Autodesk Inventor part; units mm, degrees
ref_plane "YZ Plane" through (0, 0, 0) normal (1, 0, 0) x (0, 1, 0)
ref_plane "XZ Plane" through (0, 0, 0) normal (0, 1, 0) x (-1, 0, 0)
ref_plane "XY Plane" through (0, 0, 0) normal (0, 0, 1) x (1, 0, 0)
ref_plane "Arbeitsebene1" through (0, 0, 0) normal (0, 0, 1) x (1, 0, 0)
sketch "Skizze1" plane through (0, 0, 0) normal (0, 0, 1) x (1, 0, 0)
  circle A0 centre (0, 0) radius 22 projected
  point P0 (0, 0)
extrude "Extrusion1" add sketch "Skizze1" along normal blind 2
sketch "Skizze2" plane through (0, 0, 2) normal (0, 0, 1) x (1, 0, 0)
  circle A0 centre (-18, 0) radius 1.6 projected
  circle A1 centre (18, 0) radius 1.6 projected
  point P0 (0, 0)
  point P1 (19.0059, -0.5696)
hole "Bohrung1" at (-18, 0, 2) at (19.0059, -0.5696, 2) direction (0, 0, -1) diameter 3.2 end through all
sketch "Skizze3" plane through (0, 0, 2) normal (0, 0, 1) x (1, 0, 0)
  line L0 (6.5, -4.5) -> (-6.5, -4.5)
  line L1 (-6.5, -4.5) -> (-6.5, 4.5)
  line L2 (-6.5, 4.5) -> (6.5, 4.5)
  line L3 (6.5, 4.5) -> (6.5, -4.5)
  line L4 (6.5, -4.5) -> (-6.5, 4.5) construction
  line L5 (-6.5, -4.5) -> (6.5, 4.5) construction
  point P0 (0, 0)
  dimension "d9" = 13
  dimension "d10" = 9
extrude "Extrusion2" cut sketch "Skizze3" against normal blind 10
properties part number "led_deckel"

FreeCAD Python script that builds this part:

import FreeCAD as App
import Part
import Sketcher


def add_polygon(sketch, points):
    """Adds a closed chain of lines whose ends are joined by coincident constraints."""
    first, n = sketch.GeometryCount, len(points)
    for a, b in zip(points, points[1:] + points[:1]):
        sketch.addGeometry(Part.LineSegment(App.Vector(*a, 0), App.Vector(*b, 0)), False)
    for i in range(n):
        sketch.addConstraint(Sketcher.Constraint("Coincident", first + i, 2, first + (i + 1) % n, 1))

doc = App.newDocument("Part")
body = doc.addObject("PartDesign::Body", "Body")

# Sketch on XY plane
sketch1 = doc.addObject("Sketcher::SketchObject", "Sketch")
body.addObject(sketch1)
sketch1.AttachmentSupport = (doc.XY_Plane, [""])
sketch1.MapMode = "FlatFace"
sketch1.addGeometry(Part.Circle(App.Vector(0, 0, 0), App.Vector(0, 0, 1), 22), False)
sketch1.addConstraint(Sketcher.Constraint("Coincident", 0, 3, -1, 1))
sketch1.addConstraint(Sketcher.Constraint("Diameter", 0, 44.0))
pad1 = doc.addObject("PartDesign::Pad", "Pad")
body.addObject(pad1)
pad1.Profile = sketch1
pad1.Length = 2

# Sketch on XY plane
sketch2 = doc.addObject("Sketcher::SketchObject", "Sketch001")
body.addObject(sketch2)
sketch2.AttachmentSupport = (doc.XY_Plane, [""])
sketch2.MapMode = "FlatFace"
sketch2.AttachmentOffset = App.Placement(App.Vector(0, 0, 2), App.Rotation())
sketch2.addGeometry(Part.Circle(App.Vector(-18, 0, 0), App.Vector(0, 0, 1), 1.6), False)
sketch2.addGeometry(Part.Circle(App.Vector(19.0059, -0.5696, 0), App.Vector(0, 0, 1), 1.6), False)
sketch2.addConstraint(Sketcher.Constraint("Equal", 0, 1))
sketch2.addConstraint(Sketcher.Constraint("PointOnObject", 0, 3, -1))
sketch2.addConstraint(Sketcher.Constraint("Diameter", 0, 3.2))
sketch2.addConstraint(Sketcher.Constraint("DistanceX", 0, 3, -1, 1, 18.0))
sketch2.addConstraint(Sketcher.Constraint("DistanceX", -1, 1, 1, 3, 19.006))
sketch2.addConstraint(Sketcher.Constraint("DistanceY", 1, 3, -1, 1, 0.5696))
doc.recompute()
hole = doc.addObject("PartDesign::Hole", "Hole")
body.addObject(hole)
hole.Profile = sketch2
hole.ThreadType = "None"
hole.Diameter = 3.2
hole.DepthType = "ThroughAll"

# Sketch on XY plane
sketch3 = doc.addObject("Sketcher::SketchObject", "Sketch002")
body.addObject(sketch3)
sketch3.AttachmentSupport = (doc.XY_Plane, [""])
sketch3.MapMode = "FlatFace"
sketch3.AttachmentOffset = App.Placement(App.Vector(0, 0, 2), App.Rotation())
add_polygon(sketch3, [(-6.5, -4.5), (6.5, -4.5), (6.5, 4.5), (-6.5, 4.5)])  # lines 0-3
sketch3.addConstraint(Sketcher.Constraint("Horizontal", 0))
sketch3.addConstraint(Sketcher.Constraint("Vertical", 1))
sketch3.addConstraint(Sketcher.Constraint("Horizontal", 2))
sketch3.addConstraint(Sketcher.Constraint("Vertical", 3))
sketch3.addConstraint(Sketcher.Constraint("Symmetric", 0, 2, 2, 2, -1, 1))
sketch3.addConstraint(Sketcher.Constraint("DistanceX", 0, 1, 0, 2, 13.0))
sketch3.addConstraint(Sketcher.Constraint("DistanceY", 1, 1, 1, 2, 9.0))
pocket1 = doc.addObject("PartDesign::Pocket", "Pocket")
body.addObject(pocket1)
pocket1.Profile = sketch3
pocket1.Length = 10

doc.recompute()
